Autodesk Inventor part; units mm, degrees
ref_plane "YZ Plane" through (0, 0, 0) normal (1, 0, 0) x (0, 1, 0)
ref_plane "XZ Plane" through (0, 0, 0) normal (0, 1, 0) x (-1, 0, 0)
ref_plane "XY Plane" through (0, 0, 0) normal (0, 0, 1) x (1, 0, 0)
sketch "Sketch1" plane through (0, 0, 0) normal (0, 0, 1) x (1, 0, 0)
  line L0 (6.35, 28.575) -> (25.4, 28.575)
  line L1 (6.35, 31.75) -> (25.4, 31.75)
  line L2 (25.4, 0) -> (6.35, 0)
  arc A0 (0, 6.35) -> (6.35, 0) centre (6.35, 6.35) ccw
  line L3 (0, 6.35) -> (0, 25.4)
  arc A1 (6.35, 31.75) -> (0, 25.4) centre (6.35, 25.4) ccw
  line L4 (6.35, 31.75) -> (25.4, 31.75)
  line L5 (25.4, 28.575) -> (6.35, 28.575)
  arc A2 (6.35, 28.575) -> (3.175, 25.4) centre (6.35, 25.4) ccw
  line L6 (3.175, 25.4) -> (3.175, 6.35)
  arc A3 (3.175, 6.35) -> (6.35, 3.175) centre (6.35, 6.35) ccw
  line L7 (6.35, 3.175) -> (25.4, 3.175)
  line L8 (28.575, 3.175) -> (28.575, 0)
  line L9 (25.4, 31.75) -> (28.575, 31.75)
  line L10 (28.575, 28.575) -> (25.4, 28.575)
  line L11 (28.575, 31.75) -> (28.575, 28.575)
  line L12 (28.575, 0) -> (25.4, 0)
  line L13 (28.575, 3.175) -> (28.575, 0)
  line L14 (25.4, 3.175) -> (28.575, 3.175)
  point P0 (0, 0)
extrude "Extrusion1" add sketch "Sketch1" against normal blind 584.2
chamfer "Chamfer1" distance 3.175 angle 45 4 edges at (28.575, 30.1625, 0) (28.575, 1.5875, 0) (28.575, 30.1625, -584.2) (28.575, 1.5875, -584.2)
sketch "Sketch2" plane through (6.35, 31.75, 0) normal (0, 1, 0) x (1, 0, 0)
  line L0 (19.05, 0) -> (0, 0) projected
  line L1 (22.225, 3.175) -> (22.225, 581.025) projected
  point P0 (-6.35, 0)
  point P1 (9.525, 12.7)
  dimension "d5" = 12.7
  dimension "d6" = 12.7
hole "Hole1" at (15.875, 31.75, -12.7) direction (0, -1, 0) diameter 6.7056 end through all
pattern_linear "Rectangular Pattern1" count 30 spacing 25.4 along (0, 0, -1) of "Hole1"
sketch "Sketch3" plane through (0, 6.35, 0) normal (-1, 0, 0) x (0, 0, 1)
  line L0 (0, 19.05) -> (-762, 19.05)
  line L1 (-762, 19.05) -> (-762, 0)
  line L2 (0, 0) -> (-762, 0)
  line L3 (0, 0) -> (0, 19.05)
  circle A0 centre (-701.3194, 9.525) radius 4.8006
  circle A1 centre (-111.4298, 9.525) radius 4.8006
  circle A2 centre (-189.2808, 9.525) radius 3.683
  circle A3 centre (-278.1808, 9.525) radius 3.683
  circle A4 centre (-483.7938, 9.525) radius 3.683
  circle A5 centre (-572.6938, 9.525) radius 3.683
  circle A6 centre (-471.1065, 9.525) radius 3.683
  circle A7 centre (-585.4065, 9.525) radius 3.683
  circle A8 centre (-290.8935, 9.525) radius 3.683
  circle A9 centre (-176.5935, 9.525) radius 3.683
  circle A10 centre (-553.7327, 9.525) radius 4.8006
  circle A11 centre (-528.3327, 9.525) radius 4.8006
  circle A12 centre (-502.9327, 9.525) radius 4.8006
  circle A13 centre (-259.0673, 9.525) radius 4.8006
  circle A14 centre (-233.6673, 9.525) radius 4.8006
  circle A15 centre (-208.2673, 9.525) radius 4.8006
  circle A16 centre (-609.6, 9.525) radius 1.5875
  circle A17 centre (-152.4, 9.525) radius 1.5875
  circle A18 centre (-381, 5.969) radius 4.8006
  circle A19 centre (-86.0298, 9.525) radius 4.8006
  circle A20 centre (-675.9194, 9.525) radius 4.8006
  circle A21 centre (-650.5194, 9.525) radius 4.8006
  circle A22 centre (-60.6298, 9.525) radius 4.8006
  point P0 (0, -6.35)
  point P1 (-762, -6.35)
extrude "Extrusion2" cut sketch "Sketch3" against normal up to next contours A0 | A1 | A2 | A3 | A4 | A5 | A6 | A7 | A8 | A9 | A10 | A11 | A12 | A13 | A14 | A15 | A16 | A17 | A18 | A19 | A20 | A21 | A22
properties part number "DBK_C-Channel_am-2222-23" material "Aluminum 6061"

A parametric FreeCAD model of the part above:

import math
import FreeCAD as App
import Part
import Sketcher
Q = App.Units.Quantity


def edges_at(feature, points):
    """Names of the edges that pass closest to the given points."""
    edges = feature.Shape.Edges
    near = lambda p: min(range(len(edges)), key=lambda i: edges[i].distToShape(Part.Vertex(*p))[0])
    return sorted({f"Edge{near(p) + 1}" for p in points})

doc = App.newDocument("Part")
body = doc.addObject("PartDesign::Body", "Body")

# Sketch on XY plane
sketch1 = body.newObject("Sketcher::SketchObject", "Sketch")
sketch1.AttachmentSupport = (doc.getObject("XY_Plane"), [""])
sketch1.MapMode = "FlatFace"
sketch1.addGeometry(Part.ArcOfCircle(Part.Circle(App.Vector(6.3, 25.4, 0), App.Vector(0, 0, 1), 3.2), math.radians(90), math.radians(180)), False)
sketch1.addGeometry(Part.LineSegment(App.Vector(6.3, 28.6, 0), App.Vector(28.6, 28.6, 0)), False)
sketch1.addGeometry(Part.LineSegment(App.Vector(28.6, 28.6, 0), App.Vector(28.6, 31.8, 0)), False)
sketch1.addGeometry(Part.LineSegment(App.Vector(28.6, 31.8, 0), App.Vector(6.3, 31.8, 0)), False)
sketch1.addGeometry(Part.ArcOfCircle(Part.Circle(App.Vector(6.3, 25.4, 0), App.Vector(0, 0, 1), 6.4), math.radians(90), math.radians(180)), False)
sketch1.addGeometry(Part.LineSegment(App.Vector(0, 25.4, 0), App.Vector(0, 6.3, 0)), False)
sketch1.addGeometry(Part.ArcOfCircle(Part.Circle(App.Vector(6.3, 6.3, 0), App.Vector(0, 0, 1), 6.3), math.radians(180), math.radians(270)), False)
sketch1.addGeometry(Part.LineSegment(App.Vector(6.3, 0, 0), App.Vector(28.6, 0, 0)), False)
sketch1.addGeometry(Part.LineSegment(App.Vector(28.6, 0, 0), App.Vector(28.6, 3.2, 0)), False)
sketch1.addGeometry(Part.LineSegment(App.Vector(28.6, 3.2, 0), App.Vector(6.3, 3.2, 0)), False)
sketch1.addGeometry(Part.ArcOfCircle(Part.Circle(App.Vector(6.3, 6.3, 0), App.Vector(0, 0, 1), 3.2), math.radians(180), math.radians(270)), False)
sketch1.addGeometry(Part.LineSegment(App.Vector(3.2, 6.3, 0), App.Vector(3.2, 25.4, 0)), False)
sketch1.addConstraint(Sketcher.Constraint("Tangent", 0, 1, 1, 1))
sketch1.addConstraint(Sketcher.Constraint("Coincident", 1, 2, 2, 1))
sketch1.addConstraint(Sketcher.Constraint("Coincident", 2, 2, 3, 1))
sketch1.addConstraint(Sketcher.Constraint("Tangent", 3, 2, 4, 1))
sketch1.addConstraint(Sketcher.Constraint("Tangent", 4, 2, 5, 1))
sketch1.addConstraint(Sketcher.Constraint("Tangent", 5, 2, 6, 1))
sketch1.addConstraint(Sketcher.Constraint("Tangent", 6, 2, 7, 1))
sketch1.addConstraint(Sketcher.Constraint("Coincident", 7, 2, 8, 1))
sketch1.addConstraint(Sketcher.Constraint("Coincident", 8, 2, 9, 1))
sketch1.addConstraint(Sketcher.Constraint("Tangent", 9, 2, 10, 2))
sketch1.addConstraint(Sketcher.Constraint("Tangent", 10, 1, 11, 1))
sketch1.addConstraint(Sketcher.Constraint("Tangent", 11, 2, 0, 2))
sketch1.addConstraint(Sketcher.Constraint("Horizontal", 1))
sketch1.addConstraint(Sketcher.Constraint("Vertical", 2))
sketch1.addConstraint(Sketcher.Constraint("Horizontal", 3))
sketch1.addConstraint(Sketcher.Constraint("Vertical", 5))
sketch1.addConstraint(Sketcher.Constraint("Horizontal", 7))
sketch1.addConstraint(Sketcher.Constraint("Vertical", 8))
sketch1.addConstraint(Sketcher.Constraint("Horizontal", 9))
sketch1.addConstraint(Sketcher.Constraint("Vertical", 11))
sketch1.addConstraint(Sketcher.Constraint("Coincident", 4, 3, 0, 3))
sketch1.addConstraint(Sketcher.Constraint("Coincident", 10, 3, 6, 3))
sketch1.addConstraint(Sketcher.Constraint("Equal", 4, 6))
sketch1.addConstraint(Sketcher.Constraint("PointOnObject", 4, 2, -2))
sketch1.addConstraint(Sketcher.Constraint("PointOnObject", 6, 2, -1))
sketch1.addConstraint(Sketcher.Constraint("Vertical", 2, 2, 7, 2))
sketch1.addConstraint(Sketcher.Constraint("Radius", 4, Q("0.25 in")))
sketch1.addConstraint(Sketcher.Constraint("DistanceY", -1, 1, 0, 3, Q("1 in")))
sketch1.addConstraint(Sketcher.Constraint("Radius", 0, Q("0.125 in")))
sketch1.addConstraint(Sketcher.Constraint("DistanceX", 1, 1, 1, 2, Q("0.875 in")))
pad1 = body.newObject("PartDesign::Pad", "Pad")
pad1.Profile = sketch1
pad1.Length = Q("23 in")
pad1.Reversed = True
doc.recompute()

chamfer = body.newObject("PartDesign::Chamfer", "Chamfer")
chamfer.Base = (pad1, edges_at(pad1, [
    (28.575, 30.163, 0),
    (28.575, 1.587, 0),
    (28.575, 30.163, -584.2),
    (28.575, 1.587, -584.2),
]))
chamfer.Size = Q("0.125 in")

# Sketch on XZ plane
sketch2 = body.newObject("Sketcher::SketchObject", "Sketch001")
sketch2.AttachmentSupport = (doc.getObject("XZ_Plane"), [""])
sketch2.MapMode = "FlatFace"
sketch2.AttachmentOffset = App.Placement(App.Vector(0, 0, -1.25 * 25.4), App.Rotation())
sketch2.addGeometry(Part.Circle(App.Vector(15.9, -12.7, 0), App.Vector(0, 0, 1), 3.4), False)
sketch2.addConstraint(Sketcher.Constraint("Diameter", 0, Q("0.264 in")))
sketch2.addConstraint(Sketcher.Constraint("DistanceY", 0, 3, -1, 1, Q("0.5 in")))
sketch2.addConstraint(Sketcher.Constraint("DistanceX", -1, 1, 0, 3, Q("0.625 in")))
doc.recompute()
hole = body.newObject("PartDesign::Hole", "Hole")
hole.Profile = sketch2
hole.ThreadType = "None"
hole.Diameter = Q("0.264 in")
hole.DepthType = "ThroughAll"
hole.Reversed = True
doc.recompute()

linearpattern = body.newObject("PartDesign::LinearPattern", "LinearPattern")
linearpattern.Originals = [hole]
linearpattern.Direction = (doc.getObject("Z_Axis"), [""])
linearpattern.Mode = "offset"
linearpattern.Offset = Q("1 in")
linearpattern.Occurrences = 30
linearpattern.Reversed = True
body.Tip = linearpattern

# Sketch on YZ plane
sketch3 = body.newObject("Sketcher::SketchObject", "Sketch002")
sketch3.AttachmentSupport = (doc.getObject("YZ_Plane"), [""])
sketch3.MapMode = "FlatFace"
sketch3.addGeometry(Part.Circle(App.Vector(15.9, -701.3, 0), App.Vector(0, 0, 1), 4.8), False)
sketch3.addGeometry(Part.Circle(App.Vector(15.9, -111.4, 0), App.Vector(0, 0, 1), 4.8), False)
sketch3.addGeometry(Part.Circle(App.Vector(15.9, -189.3, 0), App.Vector(0, 0, 1), 3.7), False)
sketch3.addGeometry(Part.Circle(App.Vector(15.9, -278.2, 0), App.Vector(0, 0, 1), 3.7), False)
sketch3.addGeometry(Part.Circle(App.Vector(15.9, -483.8, 0), App.Vector(0, 0, 1), 3.7), False)
sketch3.addGeometry(Part.Circle(App.Vector(15.9, -572.7, 0), App.Vector(0, 0, 1), 3.7), False)
sketch3.addGeometry(Part.Circle(App.Vector(15.9, -471.1, 0), App.Vector(0, 0, 1), 3.7), False)
sketch3.addGeometry(Part.Circle(App.Vector(15.9, -585.4, 0), App.Vector(0, 0, 1), 3.7), False)
sketch3.addGeometry(Part.Circle(App.Vector(15.9, -290.9, 0), App.Vector(0, 0, 1), 3.7), False)
sketch3.addGeometry(Part.Circle(App.Vector(15.9, -176.6, 0), App.Vector(0, 0, 1), 3.7), False)
sketch3.addGeometry(Part.Circle(App.Vector(15.9, -553.7, 0), App.Vector(0, 0, 1), 4.8), False)
sketch3.addGeometry(Part.Circle(App.Vector(15.9, -528.3, 0), App.Vector(0, 0, 1), 4.8), False)
sketch3.addGeometry(Part.Circle(App.Vector(15.9, -502.9, 0), App.Vector(0, 0, 1), 4.8), False)
sketch3.addGeometry(Part.Circle(App.Vector(15.9, -259.1, 0), App.Vector(0, 0, 1), 4.8), False)
sketch3.addGeometry(Part.Circle(App.Vector(15.9, -233.7, 0), App.Vector(0, 0, 1), 4.8), False)
sketch3.addGeometry(Part.Circle(App.Vector(15.9, -208.3, 0), App.Vector(0, 0, 1), 4.8), False)
sketch3.addGeometry(Part.Circle(App.Vector(15.9, -609.6, 0), App.Vector(0, 0, 1), 1.6), False)
sketch3.addGeometry(Part.Circle(App.Vector(15.9, -152.4, 0), App.Vector(0, 0, 1), 1.6), False)
sketch3.addGeometry(Part.Circle(App.Vector(12.3, -381, 0), App.Vector(0, 0, 1), 4.8), False)
sketch3.addGeometry(Part.Circle(App.Vector(15.9, -86, 0), App.Vector(0, 0, 1), 4.8), False)
sketch3.addGeometry(Part.Circle(App.Vector(15.9, -675.9, 0), App.Vector(0, 0, 1), 4.8), False)
sketch3.addGeometry(Part.Circle(App.Vector(15.9, -650.5, 0), App.Vector(0, 0, 1), 4.8), False)
sketch3.addGeometry(Part.Circle(App.Vector(15.9, -60.6, 0), App.Vector(0, 0, 1), 4.8), False)
sketch3.addConstraint(Sketcher.Constraint("Equal", 0, 1))
sketch3.addConstraint(Sketcher.Constraint("Equal", 2, 3))
sketch3.addConstraint(Sketcher.Constraint("Equal", 3, 4))
sketch3.addConstraint(Sketcher.Constraint("Equal", 4, 5))
sketch3.addConstraint(Sketcher.Constraint("Equal", 5, 6))
sketch3.addConstraint(Sketcher.Constraint("Equal", 6, 7))
sketch3.addConstraint(Sketcher.Constraint("Equal", 7, 8))
sketch3.addConstraint(Sketcher.Constraint("Equal", 8, 9))
sketch3.addConstraint(Sketcher.Constraint("Equal", 1, 10))
sketch3.addConstraint(Sketcher.Constraint("Equal", 10, 11))
sketch3.addConstraint(Sketcher.Constraint("Equal", 11, 12))
sketch3.addConstraint(Sketcher.Constraint("Equal", 12, 13))
sketch3.addConstraint(Sketcher.Constraint("Equal", 13, 14))
sketch3.addConstraint(Sketcher.Constraint("Equal", 14, 15))
sketch3.addConstraint(Sketcher.Constraint("Equal", 16, 17))
sketch3.addConstraint(Sketcher.Constraint("Equal", 15, 18))
sketch3.addConstraint(Sketcher.Constraint("Equal", 18, 19))
sketch3.addConstraint(Sketcher.Constraint("Equal", 19, 20))
sketch3.addConstraint(Sketcher.Constraint("Equal", 20, 21))
sketch3.addConstraint(Sketcher.Constraint("Equal", 21, 22))
sketch3.addConstraint(Sketcher.Constraint("Vertical", 0, 3, 1, 3))
sketch3.addConstraint(Sketcher.Constraint("Vertical", 1, 3, 2, 3))
sketch3.addConstraint(Sketcher.Constraint("Vertical", 2, 3, 3, 3))
sketch3.addConstraint(Sketcher.Constraint("Vertical", 3, 3, 4, 3))
sketch3.addConstraint(Sketcher.Constraint("Vertical", 4, 3, 5, 3))
sketch3.addConstraint(Sketcher.Constraint("Vertical", 5, 3, 6, 3))
sketch3.addConstraint(Sketcher.Constraint("Vertical", 6, 3, 7, 3))
sketch3.addConstraint(Sketcher.Constraint("Vertical", 7, 3, 8, 3))
sketch3.addConstraint(Sketcher.Constraint("Vertical", 8, 3, 9, 3))
sketch3.addConstraint(Sketcher.Constraint("Vertical", 9, 3, 10, 3))
sketch3.addConstraint(Sketcher.Constraint("Vertical", 10, 3, 11, 3))
sketch3.addConstraint(Sketcher.Constraint("Vertical", 11, 3, 12, 3))
sketch3.addConstraint(Sketcher.Constraint("Vertical", 12, 3, 13, 3))
sketch3.addConstraint(Sketcher.Constraint("Vertical", 13, 3, 14, 3))
sketch3.addConstraint(Sketcher.Constraint("Vertical", 14, 3, 15, 3))
sketch3.addConstraint(Sketcher.Constraint("Vertical", 15, 3, 16, 3))
sketch3.addConstraint(Sketcher.Constraint("Vertical", 16, 3, 17, 3))
sketch3.addConstraint(Sketcher.Constraint("Vertical", 17, 3, 19, 3))
sketch3.addConstraint(Sketcher.Constraint("Vertical", 19, 3, 20, 3))
sketch3.addConstraint(Sketcher.Constraint("Vertical", 20, 3, 21, 3))
sketch3.addConstraint(Sketcher.Constraint("Vertical", 21, 3, 22, 3))
sketch3.addConstraint(Sketcher.Constraint("Diameter", 2, Q("0.29 in")))
sketch3.addConstraint(Sketcher.Constraint("Diameter", 0, Q("0.378 in")))
sketch3.addConstraint(Sketcher.Constraint("Diameter", 16, Q("0.125 in")))
sketch3.addConstraint(Sketcher.Constraint("DistanceY", 16, 3, -1, 1, Q("24 in")))
sketch3.addConstraint(Sketcher.Constraint("DistanceY", 17, 3, -1, 1, Q("6 in")))
sketch3.addConstraint(Sketcher.Constraint("DistanceY", 18, 3, -1, 1, Q("15 in")))
sketch3.addConstraint(Sketcher.Constraint("DistanceY", 10, 3, 11, 3, Q("1 in")))
sketch3.addConstraint(Sketcher.Constraint("DistanceY", 11, 3, 12, 3, Q("1 in")))
sketch3.addConstraint(Sketcher.Constraint("DistanceY", 13, 3, 14, 3, Q("1 in")))
sketch3.addConstraint(Sketcher.Constraint("DistanceY", 14, 3, 15, 3, Q("1 in")))
sketch3.addConstraint(Sketcher.Constraint("DistanceY", 1, 3, 19, 3, Q("1 in")))
sketch3.addConstraint(Sketcher.Constraint("DistanceY", 0, 3, 20, 3, Q("1 in")))
sketch3.addConstraint(Sketcher.Constraint("DistanceY", 20, 3, 21, 3, Q("1 in")))
sketch3.addConstraint(Sketcher.Constraint("DistanceY", 19, 3, 22, 3, Q("1 in")))
sketch3.addConstraint(Sketcher.Constraint("DistanceY", 3, 3, 2, 3, Q("3.5 in")))
sketch3.addConstraint(Sketcher.Constraint("DistanceY", 5, 3, 4, 3, Q("3.5 in")))
sketch3.addConstraint(Sketcher.Constraint("DistanceY", 7, 3, 6, 3, Q("4.5 in")))
sketch3.addConstraint(Sketcher.Constraint("DistanceY", 8, 3, 9, 3, Q("4.5 in")))
sketch3.addConstraint(Sketcher.Constraint("DistanceY", 4, 3, 1, 3, Q("14.66 in")))
sketch3.addConstraint(Sketcher.Constraint("DistanceX", 18, 3, 6, 3, Q("0.14 in")))
sketch3.addConstraint(Sketcher.Constraint("DistanceX", -1, 1, 0, 3, Q("0.625 in")))
sketch3.addConstraint(Sketcher.Constraint("DistanceY", 0, 3, -1, 1, Q("27.611 in")))
sketch3.addConstraint(Sketcher.Constraint("DistanceY", 1, 3, -1, 1, Q("4.387 in")))
sketch3.addConstraint(Sketcher.Constraint("DistanceY", 2, 3, -1, 1, Q("7.452 in")))
sketch3.addConstraint(Sketcher.Constraint("DistanceY", 6, 3, 8, 3, Q("7.095 in")))
sketch3.addConstraint(Sketcher.Constraint("DistanceY", 7, 3, 10, 3, Q("1.247 in")))
sketch3.addConstraint(Sketcher.Constraint("DistanceY", 8, 3, 13, 3, Q("1.253 in")))
sketch3.addConstraint(Sketcher.Constraint("DistanceY", 13, 3, 1, 3, Q("5.8125 in")))
pocket1 = body.newObject("PartDesign::Pocket", "Pocket")
pocket1.Profile = sketch3
pocket1.Type = "UpToFirst"
pocket1.Reversed = True

doc.recompute()
